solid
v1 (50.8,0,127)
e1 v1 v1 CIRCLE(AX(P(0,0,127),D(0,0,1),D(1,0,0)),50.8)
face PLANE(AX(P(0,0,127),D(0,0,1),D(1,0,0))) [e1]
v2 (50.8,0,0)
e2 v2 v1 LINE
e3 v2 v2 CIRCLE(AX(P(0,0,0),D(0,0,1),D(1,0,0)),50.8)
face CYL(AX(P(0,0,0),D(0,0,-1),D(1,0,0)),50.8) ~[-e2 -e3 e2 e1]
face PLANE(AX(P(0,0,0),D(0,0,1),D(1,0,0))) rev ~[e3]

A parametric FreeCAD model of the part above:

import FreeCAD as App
import Part
import Sketcher
from FreeCAD import Vector
Q = App.Units.Quantity

doc = App.newDocument("Part")
body = doc.addObject("PartDesign::Body", "Body")

# Sketch on XY plane
sketch1 = body.newObject("Sketcher::SketchObject", "Sketch")
sketch1.AttachmentSupport = (doc.getObject("XY_Plane"), [""])
sketch1.MapMode = "FlatFace"
sketch1.addGeometry(Part.Circle(Vector(0, 0, 0), Vector(0, 0, 1), 51), False)
sketch1.addConstraint(Sketcher.Constraint("Coincident", 0, 3, -1, 1))
sketch1.addConstraint(Sketcher.Constraint("Diameter", 0, Q("4 in")))
pad1 = body.newObject("PartDesign::Pad", "Pad")
pad1.Profile = sketch1
pad1.Length = Q("5 in")

doc.recompute()
